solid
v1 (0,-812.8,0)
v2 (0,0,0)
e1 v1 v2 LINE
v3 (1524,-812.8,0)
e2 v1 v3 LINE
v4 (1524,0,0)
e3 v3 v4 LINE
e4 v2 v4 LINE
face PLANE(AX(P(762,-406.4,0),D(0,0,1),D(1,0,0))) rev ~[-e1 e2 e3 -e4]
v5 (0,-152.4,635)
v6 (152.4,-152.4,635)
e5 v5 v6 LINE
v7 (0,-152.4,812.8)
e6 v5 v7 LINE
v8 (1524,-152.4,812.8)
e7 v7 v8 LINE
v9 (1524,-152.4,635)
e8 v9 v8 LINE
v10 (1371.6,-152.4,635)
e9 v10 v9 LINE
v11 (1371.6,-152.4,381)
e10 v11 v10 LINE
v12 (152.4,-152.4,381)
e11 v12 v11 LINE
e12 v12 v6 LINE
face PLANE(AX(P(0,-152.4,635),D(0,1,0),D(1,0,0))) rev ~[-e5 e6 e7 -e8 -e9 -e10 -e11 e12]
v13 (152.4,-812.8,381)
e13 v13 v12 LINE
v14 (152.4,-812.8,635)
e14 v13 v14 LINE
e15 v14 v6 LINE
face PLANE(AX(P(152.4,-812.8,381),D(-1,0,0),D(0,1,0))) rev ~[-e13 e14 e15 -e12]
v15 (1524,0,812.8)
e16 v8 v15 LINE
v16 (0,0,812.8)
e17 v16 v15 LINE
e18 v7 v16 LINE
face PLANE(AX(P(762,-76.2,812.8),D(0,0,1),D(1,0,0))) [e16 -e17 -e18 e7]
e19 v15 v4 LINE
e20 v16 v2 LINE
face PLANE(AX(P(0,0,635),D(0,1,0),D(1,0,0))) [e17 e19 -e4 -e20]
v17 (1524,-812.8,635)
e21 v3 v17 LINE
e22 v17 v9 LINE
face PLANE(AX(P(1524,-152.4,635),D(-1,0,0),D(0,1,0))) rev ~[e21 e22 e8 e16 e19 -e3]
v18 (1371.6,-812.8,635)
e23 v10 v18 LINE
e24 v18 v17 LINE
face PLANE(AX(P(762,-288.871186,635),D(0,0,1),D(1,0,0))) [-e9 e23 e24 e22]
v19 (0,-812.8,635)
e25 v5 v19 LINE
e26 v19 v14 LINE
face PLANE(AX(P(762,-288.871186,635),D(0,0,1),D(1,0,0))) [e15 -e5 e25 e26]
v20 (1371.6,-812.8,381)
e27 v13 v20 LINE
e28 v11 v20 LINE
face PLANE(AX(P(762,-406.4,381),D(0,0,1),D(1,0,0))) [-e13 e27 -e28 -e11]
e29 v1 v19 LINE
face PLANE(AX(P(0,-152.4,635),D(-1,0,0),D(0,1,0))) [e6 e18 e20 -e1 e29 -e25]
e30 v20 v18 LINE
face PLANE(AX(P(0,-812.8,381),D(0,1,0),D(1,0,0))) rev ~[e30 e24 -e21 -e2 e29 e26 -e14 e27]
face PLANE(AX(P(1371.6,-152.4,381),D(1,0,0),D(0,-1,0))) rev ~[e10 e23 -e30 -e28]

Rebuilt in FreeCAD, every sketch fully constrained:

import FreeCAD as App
import Part
import Sketcher
from FreeCAD import Vector
Q = App.Units.Quantity


def add_polygon(sketch, points):
    """Adds a closed chain of lines whose ends are joined by coincident constraints."""
    first, n = sketch.GeometryCount, len(points)
    for a, b in zip(points, points[1:] + points[:1]):
        sketch.addGeometry(Part.LineSegment(App.Vector(*a, 0), App.Vector(*b, 0)), False)
    for i in range(n):
        sketch.addConstraint(Sketcher.Constraint("Coincident", first + i, 2, first + (i + 1) % n, 1))

doc = App.newDocument("Part")
params = doc.addObject("Spreadsheet::Sheet", "Params")
for row, (alias, value) in enumerate([
    ("sketch1_width", "60 in"),
    ("sketch1_height", "32 in"),
    ("pad1_length", "15 in"),
    ("sketch2_width", "6 in"),
    ("sketch2_width2", "48 in"),
    ("sketch2_height", "32 in"),
    ("sketch2_height2", "26 in"),
    ("pad2_length", "10 in"),
    ("sketch3_width", "60 in"),
    ("sketch3_height", "6 in"),
    ("pad3_length", "7 in"),
], start=1):
    params.set(f"A{row}", alias)
    params.set(f"B{row}", "=" + value)
    params.setAlias(f"B{row}", alias)

body = doc.addObject("PartDesign::Body", "Body")

sketch1 = body.newObject("Sketcher::SketchObject", "Sketch")
sketch1.AttachmentSupport = (doc.getObject("XY_Plane"), [""])
sketch1.MapMode = "FlatFace"
add_polygon(sketch1, [(0, 0), (0, -812.8), (1524, -812.8), (1524, 0)])
sketch1.addConstraint([
    Sketcher.Constraint("Vertical", 0),
    Sketcher.Constraint("Horizontal", 1),
    Sketcher.Constraint("Vertical", 2),
    Sketcher.Constraint("Horizontal", 3),
    Sketcher.Constraint("Coincident", 3, 2, -1, 1),
    Sketcher.Constraint("DistanceX", 1, 1, 1, 2, Q("60 in")),
    Sketcher.Constraint("DistanceY", 0, 2, 0, 1, Q("32 in")),
])
sketch1.setExpression("Constraints[9]", "Params.sketch1_width")
sketch1.setExpression("Constraints[10]", "Params.sketch1_height")
pad1 = body.newObject("PartDesign::Pad", "Pad")
pad1.Profile = sketch1
pad1.setExpression("Length", "Params.pad1_length")

sketch2 = body.newObject("Sketcher::SketchObject", "Sketch001")
sketch2.AttachmentSupport = (doc.getObject("XY_Plane"), [""])
sketch2.MapMode = "FlatFace"
sketch2.AttachmentOffset = App.Placement(Vector(0, 0, 15 * 25.4), App.Rotation())
add_polygon(sketch2, [(0, 0), (0, -812.8), (152.4, -812.8), (152.4, -152.4), (1371.6, -152.4), (1371.6, -812.8), (1524, -812.8), (1524, 0)])
sketch2.addConstraint([
    Sketcher.Constraint("Vertical", 0),
    Sketcher.Constraint("Horizontal", 1),
    Sketcher.Constraint("Vertical", 2),
    Sketcher.Constraint("Horizontal", 3),
    Sketcher.Constraint("Vertical", 4),
    Sketcher.Constraint("Horizontal", 5),
    Sketcher.Constraint("Vertical", 6),
    Sketcher.Constraint("Horizontal", 7),
    Sketcher.Constraint("Coincident", 7, 2, -1, 1),
    Sketcher.Constraint("Horizontal", 1, 2, 4, 2),
    Sketcher.Constraint("Equal", 1, 5),
    Sketcher.Constraint("DistanceX", 1, 1, 1, 2, Q("6 in")),
    Sketcher.Constraint("DistanceX", 3, 1, 3, 2, Q("48 in")),
    Sketcher.Constraint("DistanceY", 0, 2, 0, 1, Q("32 in")),
    Sketcher.Constraint("DistanceY", 2, 1, 2, 2, Q("26 in")),
])
sketch2.setExpression("Constraints[19]", "Params.sketch2_width")
sketch2.setExpression("Constraints[20]", "Params.sketch2_width2")
sketch2.setExpression("Constraints[21]", "Params.sketch2_height")
sketch2.setExpression("Constraints[22]", "Params.sketch2_height2")
pad2 = body.newObject("PartDesign::Pad", "Pad001")
pad2.Profile = sketch2
pad2.setExpression("Length", "Params.pad2_length")

sketch3 = body.newObject("Sketcher::SketchObject", "Sketch002")
sketch3.AttachmentSupport = (doc.getObject("XY_Plane"), [""])
sketch3.MapMode = "FlatFace"
sketch3.AttachmentOffset = App.Placement(Vector(0, 0, 25 * 25.4), App.Rotation())
add_polygon(sketch3, [(0, 0), (0, -152.4), (1524, -152.4), (1524, 0)])
sketch3.addConstraint([
    Sketcher.Constraint("Vertical", 0),
    Sketcher.Constraint("Horizontal", 1),
    Sketcher.Constraint("Vertical", 2),
    Sketcher.Constraint("Horizontal", 3),
    Sketcher.Constraint("Coincident", 3, 2, -1, 1),
    Sketcher.Constraint("DistanceX", 1, 1, 1, 2, Q("60 in")),
    Sketcher.Constraint("DistanceY", 0, 2, 0, 1, Q("6 in")),
])
sketch3.setExpression("Constraints[9]", "Params.sketch3_width")
sketch3.setExpression("Constraints[10]", "Params.sketch3_height")
pad3 = body.newObject("PartDesign::Pad", "Pad002")
pad3.Profile = sketch3
pad3.setExpression("Length", "Params.pad3_length")

doc.recompute()
